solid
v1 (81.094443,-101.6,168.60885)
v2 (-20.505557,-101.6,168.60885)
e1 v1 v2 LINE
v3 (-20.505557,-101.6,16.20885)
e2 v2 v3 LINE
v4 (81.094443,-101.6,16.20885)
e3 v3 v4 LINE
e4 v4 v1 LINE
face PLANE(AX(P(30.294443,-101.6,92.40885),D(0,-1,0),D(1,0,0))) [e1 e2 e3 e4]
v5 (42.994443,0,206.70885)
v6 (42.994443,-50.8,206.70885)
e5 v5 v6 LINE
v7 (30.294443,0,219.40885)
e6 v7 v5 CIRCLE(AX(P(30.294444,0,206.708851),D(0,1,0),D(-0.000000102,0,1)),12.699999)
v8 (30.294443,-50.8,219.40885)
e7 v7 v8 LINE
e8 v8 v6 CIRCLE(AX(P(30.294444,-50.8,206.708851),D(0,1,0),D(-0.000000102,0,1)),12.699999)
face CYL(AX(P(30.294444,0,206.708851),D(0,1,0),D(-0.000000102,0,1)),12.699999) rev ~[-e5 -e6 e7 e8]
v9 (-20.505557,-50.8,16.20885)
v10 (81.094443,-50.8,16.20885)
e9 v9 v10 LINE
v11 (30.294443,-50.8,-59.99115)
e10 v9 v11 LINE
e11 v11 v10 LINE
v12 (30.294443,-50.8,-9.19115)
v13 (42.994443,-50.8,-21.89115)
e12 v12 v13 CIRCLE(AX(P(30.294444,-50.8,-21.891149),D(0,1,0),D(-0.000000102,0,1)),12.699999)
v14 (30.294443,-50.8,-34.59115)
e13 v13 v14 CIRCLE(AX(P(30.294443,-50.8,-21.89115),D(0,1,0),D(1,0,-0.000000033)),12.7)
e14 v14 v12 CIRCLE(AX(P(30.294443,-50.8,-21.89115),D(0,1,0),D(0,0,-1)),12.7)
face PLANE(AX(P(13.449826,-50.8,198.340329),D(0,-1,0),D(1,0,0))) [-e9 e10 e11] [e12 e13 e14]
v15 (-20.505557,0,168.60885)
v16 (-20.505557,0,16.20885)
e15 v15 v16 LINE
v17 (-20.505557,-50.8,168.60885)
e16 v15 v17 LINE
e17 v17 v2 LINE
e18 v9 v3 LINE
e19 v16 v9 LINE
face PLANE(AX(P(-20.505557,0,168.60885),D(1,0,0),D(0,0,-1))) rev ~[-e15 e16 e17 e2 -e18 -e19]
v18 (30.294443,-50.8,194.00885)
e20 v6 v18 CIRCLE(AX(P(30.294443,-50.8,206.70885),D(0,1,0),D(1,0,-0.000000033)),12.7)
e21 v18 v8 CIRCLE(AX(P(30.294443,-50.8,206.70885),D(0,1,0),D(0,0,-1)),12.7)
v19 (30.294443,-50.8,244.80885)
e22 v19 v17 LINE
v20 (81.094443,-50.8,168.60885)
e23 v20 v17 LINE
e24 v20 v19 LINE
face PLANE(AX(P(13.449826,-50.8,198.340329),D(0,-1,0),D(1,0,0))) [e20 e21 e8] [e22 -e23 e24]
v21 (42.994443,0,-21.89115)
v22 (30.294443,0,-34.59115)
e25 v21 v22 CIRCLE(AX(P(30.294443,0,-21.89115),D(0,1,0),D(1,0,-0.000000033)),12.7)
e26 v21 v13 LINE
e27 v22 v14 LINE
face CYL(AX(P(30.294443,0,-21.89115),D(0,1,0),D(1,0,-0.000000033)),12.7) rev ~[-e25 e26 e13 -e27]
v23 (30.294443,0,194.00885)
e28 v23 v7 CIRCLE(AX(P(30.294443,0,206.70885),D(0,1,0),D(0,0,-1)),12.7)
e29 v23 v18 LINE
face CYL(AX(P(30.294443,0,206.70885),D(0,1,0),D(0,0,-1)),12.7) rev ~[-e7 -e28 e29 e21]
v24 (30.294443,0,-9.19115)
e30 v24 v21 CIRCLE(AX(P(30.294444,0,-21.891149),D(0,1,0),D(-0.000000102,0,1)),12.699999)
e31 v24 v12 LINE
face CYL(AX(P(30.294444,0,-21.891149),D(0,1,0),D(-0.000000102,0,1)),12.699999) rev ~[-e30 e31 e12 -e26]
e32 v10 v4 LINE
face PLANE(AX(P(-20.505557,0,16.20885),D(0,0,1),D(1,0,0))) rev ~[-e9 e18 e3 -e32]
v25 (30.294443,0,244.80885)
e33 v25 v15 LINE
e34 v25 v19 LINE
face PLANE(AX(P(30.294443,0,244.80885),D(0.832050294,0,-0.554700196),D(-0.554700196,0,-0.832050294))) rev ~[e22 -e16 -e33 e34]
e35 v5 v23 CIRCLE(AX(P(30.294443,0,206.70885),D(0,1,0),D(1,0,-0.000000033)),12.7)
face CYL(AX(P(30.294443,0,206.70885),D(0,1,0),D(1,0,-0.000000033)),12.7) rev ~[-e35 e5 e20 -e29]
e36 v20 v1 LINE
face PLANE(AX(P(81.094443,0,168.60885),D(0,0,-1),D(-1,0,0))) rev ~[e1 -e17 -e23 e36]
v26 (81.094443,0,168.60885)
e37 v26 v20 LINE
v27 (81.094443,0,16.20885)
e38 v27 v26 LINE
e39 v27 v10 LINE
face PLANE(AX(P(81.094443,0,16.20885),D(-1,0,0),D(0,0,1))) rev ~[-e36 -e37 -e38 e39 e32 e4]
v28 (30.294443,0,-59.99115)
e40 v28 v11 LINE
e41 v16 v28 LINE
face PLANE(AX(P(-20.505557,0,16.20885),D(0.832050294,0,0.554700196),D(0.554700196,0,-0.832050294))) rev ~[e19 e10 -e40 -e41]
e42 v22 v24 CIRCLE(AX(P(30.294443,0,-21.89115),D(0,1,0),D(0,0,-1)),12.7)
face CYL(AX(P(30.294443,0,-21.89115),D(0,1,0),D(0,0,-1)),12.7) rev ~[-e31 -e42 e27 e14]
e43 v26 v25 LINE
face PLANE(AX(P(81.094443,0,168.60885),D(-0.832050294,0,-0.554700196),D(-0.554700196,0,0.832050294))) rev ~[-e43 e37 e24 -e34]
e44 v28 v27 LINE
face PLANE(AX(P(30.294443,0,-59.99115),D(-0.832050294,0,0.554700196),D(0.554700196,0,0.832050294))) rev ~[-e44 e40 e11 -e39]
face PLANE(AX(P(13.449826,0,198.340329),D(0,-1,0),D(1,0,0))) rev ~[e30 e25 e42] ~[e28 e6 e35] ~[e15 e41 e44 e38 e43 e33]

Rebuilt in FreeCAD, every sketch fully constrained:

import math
import FreeCAD as App
import Part
import Sketcher

V = App.Vector
Q = App.Units.Quantity


def add_polygon(sketch, points):
    """Adds a closed chain of lines whose ends are joined by coincident constraints."""
    first, n = sketch.GeometryCount, len(points)
    for a, b in zip(points, points[1:] + points[:1]):
        sketch.addGeometry(Part.LineSegment(App.Vector(*a, 0), App.Vector(*b, 0)), False)
    for i in range(n):
        sketch.addConstraint(Sketcher.Constraint("Coincident", first + i, 2, first + (i + 1) % n, 1))

doc = App.newDocument("Part")
params = doc.addObject("Spreadsheet::Sheet", "Params")
for row, (alias, value) in enumerate([
    ("sketch1_width", "4 in"),
    ("sketch1_height", "6 in"),
    ("pad1_length", "4 in"),
    ("sketch2_radius", "0.5 in"),
    ("sketch2_height", "6 in"),
    ("pad2_length", "2 in"),
], start=1):
    params.set(f"A{row}", alias)
    params.set(f"B{row}", "=" + value)
    params.setAlias(f"B{row}", alias)

body = doc.addObject("PartDesign::Body", "Body")

# Sketch on XZ plane
sketch1 = doc.addObject("Sketcher::SketchObject", "Sketch")
body.addObject(sketch1)
sketch1.AttachmentSupport = (doc.XZ_Plane, [""])
sketch1.MapMode = "FlatFace"
add_polygon(sketch1, [(-21, 169), (-21, 16), (81, 16), (81, 169)])  # lines 0-3
sketch1.addConstraint([
    Sketcher.Constraint("Vertical", 0),
    Sketcher.Constraint("Horizontal", 1),
    Sketcher.Constraint("Vertical", 2),
    Sketcher.Constraint("Horizontal", 3),
    Sketcher.Constraint("DistanceX", 1, 1, 1, 2, Q("4 in")),
    Sketcher.Constraint("DistanceY", 0, 2, 0, 1, Q("6 in")),
    Sketcher.Constraint("DistanceY", -1, 1, 0, 2, 16.20885),
    Sketcher.Constraint("DistanceX", 0, 2, -1, 1, 20.505557),
])
sketch1.setExpression("Constraints[8]", "Params.sketch1_width")
sketch1.setExpression("Constraints[9]", "Params.sketch1_height")
pad1 = doc.addObject("PartDesign::Pad", "Pad")
body.addObject(pad1)
pad1.Profile = sketch1
pad1.setExpression("Length", "Params.pad1_length")

# Sketch on XZ plane
sketch2 = doc.addObject("Sketcher::SketchObject", "Sketch001")
body.addObject(sketch2)
sketch2.AttachmentSupport = (doc.XZ_Plane, [""])
sketch2.MapMode = "FlatFace"
add_polygon(sketch2, [(30, 245), (-21, 169), (-21, 16), (30, -60), (81, 16), (81, 169)])  # lines 0-5
sketch2.addGeometry(Part.ArcOfCircle(Part.Circle(V(30, -22, 0), V(0, 0, 1), 13), math.radians(90), math.radians(270)), False)  # 6
sketch2.addGeometry(Part.ArcOfCircle(Part.Circle(V(30, -22, 0), V(0, 0, 1), 13), math.radians(0), math.radians(90)), False)  # 7
sketch2.addGeometry(Part.ArcOfCircle(Part.Circle(V(30, -22, 0), V(0, 0, 1), 13), math.radians(-90), math.radians(0)), False)  # 8
sketch2.addGeometry(Part.ArcOfCircle(Part.Circle(V(30, 207, 0), V(0, 0, 1), 13), math.radians(90), math.radians(270)), False)  # 9
sketch2.addGeometry(Part.ArcOfCircle(Part.Circle(V(30, 207, 0), V(0, 0, 1), 13), math.radians(0), math.radians(90)), False)  # 10
sketch2.addGeometry(Part.ArcOfCircle(Part.Circle(V(30, 207, 0), V(0, 0, 1), 13), math.radians(-90), math.radians(0)), False)  # 11
sketch2.addConstraint([
    Sketcher.Constraint("Tangent", 6, 1, 7, 2),
    Sketcher.Constraint("Tangent", 7, 1, 8, 2),
    Sketcher.Constraint("Tangent", 8, 1, 6, 2),
    Sketcher.Constraint("Tangent", 9, 1, 10, 2),
    Sketcher.Constraint("Tangent", 10, 1, 11, 2),
    Sketcher.Constraint("Tangent", 11, 1, 9, 2),
    Sketcher.Constraint("Vertical", 1),
    Sketcher.Constraint("Vertical", 4),
    Sketcher.Constraint("Equal", 8, 9),
    Sketcher.Constraint("Parallel", 0, 3),
    Sketcher.Constraint("Parallel", 2, 5),
    Sketcher.Constraint("Horizontal", 1, 2, 3, 2),
    Sketcher.Constraint("Horizontal", 0, 2, 4, 2),
    Sketcher.Constraint("Horizontal", 8, 3, 7, 1),
    Sketcher.Constraint("Horizontal", 11, 3, 10, 1),
    Sketcher.Constraint("Vertical", 8, 3, 9, 3),
    Sketcher.Constraint("Vertical", 11, 3, 2, 2),
    Sketcher.Constraint("Vertical", 2, 2, 5, 2),
    Sketcher.Constraint("Vertical", 5, 2, 6, 1),
    Sketcher.Constraint("Vertical", 6, 1, 8, 1),
    Sketcher.Constraint("Vertical", 8, 1, 9, 1),
    Sketcher.Constraint("Vertical", 9, 1, 11, 1),
    Sketcher.Constraint("Radius", 6, Q("0.5 in")),
    Sketcher.Constraint("DistanceY", 1, 2, 1, 1, Q("6 in")),
    Sketcher.Constraint("DistanceY", 7, 3, 9, 3, Q("8.9999999 in")),
    Sketcher.Constraint("DistanceX", 0, 2, 11, 3, Q("2 in")),
    Sketcher.Constraint("DistanceY", 2, 2, 1, 2, Q("3 in")),
    Sketcher.Constraint("DistanceY", 2, 2, 6, 1, Q("2 in")),
    Sketcher.Constraint("DistanceY", 6, 3, -1, 1, 21.89115),
    Sketcher.Constraint("DistanceX", -1, 1, 6, 3, 30.294443),
])
sketch2.setExpression("Constraints[28]", "Params.sketch2_radius")
sketch2.setExpression("Constraints[29]", "Params.sketch2_height")
pad2 = doc.addObject("PartDesign::Pad", "Pad001")
body.addObject(pad2)
pad2.Profile = sketch2
pad2.setExpression("Length", "Params.pad2_length")

doc.recompute()
